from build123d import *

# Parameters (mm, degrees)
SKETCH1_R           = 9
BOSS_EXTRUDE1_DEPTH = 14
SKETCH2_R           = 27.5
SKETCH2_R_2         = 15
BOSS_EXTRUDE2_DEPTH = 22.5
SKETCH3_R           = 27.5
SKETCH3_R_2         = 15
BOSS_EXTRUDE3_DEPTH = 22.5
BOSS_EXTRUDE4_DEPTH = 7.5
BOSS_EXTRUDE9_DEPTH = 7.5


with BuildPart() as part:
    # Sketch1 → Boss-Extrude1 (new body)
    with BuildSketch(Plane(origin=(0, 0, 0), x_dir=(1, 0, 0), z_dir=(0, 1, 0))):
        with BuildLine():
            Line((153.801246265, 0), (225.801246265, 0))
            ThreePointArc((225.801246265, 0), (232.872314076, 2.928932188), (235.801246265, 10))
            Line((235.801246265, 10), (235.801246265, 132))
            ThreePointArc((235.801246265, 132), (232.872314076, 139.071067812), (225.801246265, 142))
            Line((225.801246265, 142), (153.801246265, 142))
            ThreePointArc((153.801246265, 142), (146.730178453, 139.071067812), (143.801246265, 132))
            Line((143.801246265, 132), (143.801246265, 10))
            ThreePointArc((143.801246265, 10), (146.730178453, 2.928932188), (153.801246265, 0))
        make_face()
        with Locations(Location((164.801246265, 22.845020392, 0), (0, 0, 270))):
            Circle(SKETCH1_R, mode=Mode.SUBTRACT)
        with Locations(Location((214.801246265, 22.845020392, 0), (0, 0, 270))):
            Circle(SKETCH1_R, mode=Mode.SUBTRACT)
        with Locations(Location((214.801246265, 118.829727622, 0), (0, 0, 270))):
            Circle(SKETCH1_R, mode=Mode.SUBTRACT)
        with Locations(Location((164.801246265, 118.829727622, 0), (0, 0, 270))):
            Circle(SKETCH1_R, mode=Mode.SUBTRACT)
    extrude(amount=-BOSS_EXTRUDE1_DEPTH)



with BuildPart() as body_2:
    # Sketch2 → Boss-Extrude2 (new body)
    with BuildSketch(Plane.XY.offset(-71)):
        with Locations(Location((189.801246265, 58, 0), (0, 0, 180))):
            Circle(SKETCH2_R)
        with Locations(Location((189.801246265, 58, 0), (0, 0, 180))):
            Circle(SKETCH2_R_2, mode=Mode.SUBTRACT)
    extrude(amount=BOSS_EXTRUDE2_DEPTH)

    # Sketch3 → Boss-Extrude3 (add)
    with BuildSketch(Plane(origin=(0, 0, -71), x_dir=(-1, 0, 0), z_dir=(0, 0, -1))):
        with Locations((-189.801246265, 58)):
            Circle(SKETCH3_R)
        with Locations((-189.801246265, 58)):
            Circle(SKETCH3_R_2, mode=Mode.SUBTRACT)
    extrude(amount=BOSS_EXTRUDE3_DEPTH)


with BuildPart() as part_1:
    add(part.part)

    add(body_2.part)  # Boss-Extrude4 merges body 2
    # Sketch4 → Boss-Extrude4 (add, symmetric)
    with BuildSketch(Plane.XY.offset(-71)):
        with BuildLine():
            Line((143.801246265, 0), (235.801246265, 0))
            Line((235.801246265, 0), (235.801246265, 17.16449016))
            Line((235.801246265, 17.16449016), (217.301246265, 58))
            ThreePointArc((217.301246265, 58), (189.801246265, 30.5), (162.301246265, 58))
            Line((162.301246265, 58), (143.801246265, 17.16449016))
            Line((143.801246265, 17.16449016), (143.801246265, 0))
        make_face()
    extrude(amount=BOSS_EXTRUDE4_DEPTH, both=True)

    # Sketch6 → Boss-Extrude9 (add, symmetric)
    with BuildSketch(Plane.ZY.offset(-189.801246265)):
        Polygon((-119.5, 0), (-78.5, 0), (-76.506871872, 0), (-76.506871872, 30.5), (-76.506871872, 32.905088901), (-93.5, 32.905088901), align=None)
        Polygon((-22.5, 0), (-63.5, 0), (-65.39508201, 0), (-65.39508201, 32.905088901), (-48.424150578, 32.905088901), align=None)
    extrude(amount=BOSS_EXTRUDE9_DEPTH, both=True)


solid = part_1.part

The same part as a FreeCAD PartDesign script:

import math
import FreeCAD as App
import Part
import Sketcher

V = App.Vector


def add_polygon(sketch, points):
    """Adds a closed chain of lines whose ends are joined by coincident constraints."""
    first, n = sketch.GeometryCount, len(points)
    for a, b in zip(points, points[1:] + points[:1]):
        sketch.addGeometry(Part.LineSegment(App.Vector(*a, 0), App.Vector(*b, 0)), False)
    for i in range(n):
        sketch.addConstraint(Sketcher.Constraint("Coincident", first + i, 2, first + (i + 1) % n, 1))

doc = App.newDocument("Part")
body = doc.addObject("PartDesign::Body", "Body")

# Sketch on XZ plane
sketch1 = doc.addObject("Sketcher::SketchObject", "Sketch")
body.addObject(sketch1)
sketch1.AttachmentSupport = (doc.XZ_Plane, [""])
sketch1.MapMode = "FlatFace"
sketch1.addGeometry([
    Part.LineSegment(V(154, 0, 0), V(226, 0, 0)),  # 0
    Part.ArcOfCircle(Part.Circle(V(226, -10, 0), V(0, 0, 1), 10), math.radians(0), math.radians(90)),  # 1
    Part.LineSegment(V(236, -10, 0), V(236, -132, 0)),  # 2
    Part.ArcOfCircle(Part.Circle(V(226, -132, 0), V(0, 0, 1), 10), math.radians(-90), math.radians(0)),  # 3
    Part.LineSegment(V(226, -142, 0), V(154, -142, 0)),  # 4
    Part.ArcOfCircle(Part.Circle(V(154, -132, 0), V(0, 0, 1), 10), math.radians(180), math.radians(270)),  # 5
    Part.LineSegment(V(144, -132, 0), V(144, -10, 0)),  # 6
    Part.ArcOfCircle(Part.Circle(V(154, -10, 0), V(0, 0, 1), 10), math.radians(90), math.radians(180)),  # 7
    Part.Circle(V(165, -23, 0), V(0, 0, 1), 9),  # 8
    Part.Circle(V(215, -23, 0), V(0, 0, 1), 9),  # 9
    Part.Circle(V(165, -119, 0), V(0, 0, 1), 9),  # 10
    Part.Circle(V(215, -119, 0), V(0, 0, 1), 9),  # 11
], False)
sketch1.addConstraint([
    Sketcher.Constraint("Tangent", 0, 2, 1, 2),
    Sketcher.Constraint("Tangent", 1, 1, 2, 1),
    Sketcher.Constraint("Tangent", 2, 2, 3, 2),
    Sketcher.Constraint("Tangent", 3, 1, 4, 1),
    Sketcher.Constraint("Tangent", 4, 2, 5, 2),
    Sketcher.Constraint("Tangent", 5, 1, 6, 1),
    Sketcher.Constraint("Tangent", 6, 2, 7, 2),
    Sketcher.Constraint("Tangent", 7, 1, 0, 1),
    Sketcher.Constraint("Horizontal", 0),
    Sketcher.Constraint("Vertical", 2),
    Sketcher.Constraint("Horizontal", 4),
    Sketcher.Constraint("Vertical", 6),
    Sketcher.Constraint("Equal", 1, 3),
    Sketcher.Constraint("Equal", 3, 5),
    Sketcher.Constraint("Equal", 5, 7),
    Sketcher.Constraint("Equal", 8, 9),
    Sketcher.Constraint("Equal", 9, 10),
    Sketcher.Constraint("Equal", 10, 11),
    Sketcher.Constraint("PointOnObject", 0, 2, -1),
    Sketcher.Constraint("Horizontal", 8, 3, 9, 3),
    Sketcher.Constraint("Horizontal", 10, 3, 11, 3),
    Sketcher.Constraint("Vertical", 8, 3, 10, 3),
    Sketcher.Constraint("Vertical", 9, 3, 11, 3),
    Sketcher.Constraint("Diameter", 8, 18.0),
    Sketcher.Constraint("Radius", 1, 10.0),
    Sketcher.Constraint("DistanceX", 0, 1, 0, 2, 72.0),
    Sketcher.Constraint("DistanceY", 2, 2, 2, 1, 122.0),
    Sketcher.Constraint("DistanceX", 7, 3, 8, 3, 11.0),
    Sketcher.Constraint("DistanceX", 9, 3, 1, 3, 11.0),
    Sketcher.Constraint("DistanceY", 8, 3, -1, 1, 22.84502),
    Sketcher.Constraint("DistanceX", -1, 1, 1, 3, 225.801246),
    Sketcher.Constraint("DistanceY", 10, 3, -1, 1, 118.829728),
])
pad1 = doc.addObject("PartDesign::Pad", "Pad")
body.addObject(pad1)
pad1.Profile = sketch1
pad1.Length = 14
body2 = doc.addObject("PartDesign::Body", "Body001")

# Sketch on XY plane
sketch2 = doc.addObject("Sketcher::SketchObject", "Sketch001")
body2.addObject(sketch2)
sketch2.AttachmentSupport = (doc.getObject("XY_Plane001"), [""])
sketch2.MapMode = "FlatFace"
sketch2.AttachmentOffset = App.Placement(V(0, 0, -71), App.Rotation())
sketch2.addGeometry([
    Part.Circle(V(190, 58, 0), V(0, 0, 1), 28),
    Part.Circle(V(190, 58, 0), V(0, 0, 1), 15),
], False)
sketch2.addConstraint([
    Sketcher.Constraint("Coincident", 1, 3, 0, 3),
    Sketcher.Constraint("Diameter", 0, 55.0),
    Sketcher.Constraint("Diameter", 1, 30.0),
    Sketcher.Constraint("DistanceY", -1, 1, 0, 3, 58.0),
    Sketcher.Constraint("DistanceX", -1, 1, 0, 3, 189.801246),
])
pad2 = doc.addObject("PartDesign::Pad", "Pad001")
body2.addObject(pad2)
pad2.Profile = sketch2
pad2.Length = 22.5

# Sketch on XY plane
sketch3 = doc.addObject("Sketcher::SketchObject", "Sketch002")
body2.addObject(sketch3)
sketch3.AttachmentSupport = (doc.getObject("XY_Plane001"), [""])
sketch3.MapMode = "FlatFace"
sketch3.AttachmentOffset = App.Placement(V(0, 0, -71), App.Rotation())
sketch3.addGeometry([
    Part.Circle(V(190, 58, 0), V(0, 0, 1), 28),
    Part.Circle(V(190, 58, 0), V(0, 0, 1), 15),
], False)
sketch3.addConstraint([
    Sketcher.Constraint("Coincident", 1, 3, 0, 3),
    Sketcher.Constraint("Diameter", 0, 55.0),
    Sketcher.Constraint("Diameter", 1, 30.0),
    Sketcher.Constraint("DistanceY", -1, 1, 0, 3, 58.0),
    Sketcher.Constraint("DistanceX", -1, 1, 0, 3, 189.801246),
])
pad3 = doc.addObject("PartDesign::Pad", "Pad002")
body2.addObject(pad3)
pad3.Profile = sketch3
pad3.Length = 22.5
pad3.Reversed = True
body.AllowCompound = True
doc.recompute()

boolean = doc.addObject("PartDesign::Boolean", "Boolean")
body.addObject(boolean)
boolean.Type = "Fuse"
boolean.addObjects([body2])

# Sketch on XY plane
sketch4 = doc.addObject("Sketcher::SketchObject", "Sketch003")
body.addObject(sketch4)
sketch4.AttachmentSupport = (doc.XY_Plane, [""])
sketch4.MapMode = "FlatFace"
sketch4.AttachmentOffset = App.Placement(V(0, 0, -71), App.Rotation())
sketch4.addGeometry([
    Part.LineSegment(V(144, 0, 0), V(236, 0, 0)),  # 0
    Part.LineSegment(V(236, 0, 0), V(236, 17, 0)),  # 1
    Part.LineSegment(V(236, 17, 0), V(217, 58, 0)),  # 2
    Part.ArcOfCircle(Part.Circle(V(190, 58, 0), V(0, 0, 1), 28), math.radians(180), math.radians(360)),  # 3
    Part.LineSegment(V(162, 58, 0), V(144, 17, 0)),  # 4
    Part.LineSegment(V(144, 17, 0), V(144, 0, 0)),  # 5
], False)
sketch4.addConstraint([
    Sketcher.Constraint("Coincident", 0, 2, 1, 1),
    Sketcher.Constraint("Coincident", 1, 2, 2, 1),
    Sketcher.Constraint("Coincident", 2, 2, 3, 2),
    Sketcher.Constraint("Coincident", 3, 1, 4, 1),
    Sketcher.Constraint("Coincident", 4, 2, 5, 1),
    Sketcher.Constraint("Coincident", 5, 2, 0, 1),
    Sketcher.Constraint("Horizontal", 0),
    Sketcher.Constraint("Vertical", 1),
    Sketcher.Constraint("Vertical", 5),
    Sketcher.Constraint("PointOnObject", 0, 2, -1),
    Sketcher.Constraint("Horizontal", 3, 3, 2, 2),
    Sketcher.Constraint("Horizontal", 2, 2, 3, 1),
    Sketcher.Constraint("Horizontal", 1, 2, 4, 2),
    Sketcher.Constraint("Equal", 2, 4),
    Sketcher.Constraint("Radius", 3, 27.5),
    Sketcher.Constraint("DistanceX", 0, 1, 0, 2, 92.0),
    Sketcher.Constraint("DistanceY", -1, 1, 3, 3, 58.0),
    Sketcher.Constraint("DistanceY", 1, 1, 1, 2, 17.16449),
    Sketcher.Constraint("DistanceX", -1, 1, 3, 3, 189.801246),
])
pad4 = doc.addObject("PartDesign::Pad", "Pad003")
body.addObject(pad4)
pad4.Profile = sketch4
pad4.Length = 15
pad4.Midplane = True

# Sketch on YZ plane
sketch5 = doc.addObject("Sketcher::SketchObject", "Sketch004")
body.addObject(sketch5)
sketch5.AttachmentSupport = (doc.YZ_Plane, [""])
sketch5.MapMode = "FlatFace"
sketch5.AttachmentOffset = App.Placement(V(0, 0, 189.801246), App.Rotation())
add_polygon(sketch5, [(0, -120), (0, -77), (33, -77), (33, -94)])  # lines 0-3
add_polygon(sketch5, [(0, -65), (0, -22), (33, -48), (33, -65)])  # lines 4-7
sketch5.addConstraint([
    Sketcher.Constraint("Vertical", 0),
    Sketcher.Constraint("Horizontal", 1),
    Sketcher.Constraint("Vertical", 2),
    Sketcher.Constraint("Vertical", 4),
    Sketcher.Constraint("Vertical", 6),
    Sketcher.Constraint("Horizontal", 7),
    Sketcher.Constraint("PointOnObject", 0, 2, -2),
    Sketcher.Constraint("PointOnObject", 4, 2, -2),
    Sketcher.Constraint("Vertical", 2, 2, 5, 2),
    Sketcher.Constraint("DistanceY", 3, 2, 2, 2, 26.0),
    Sketcher.Constraint("DistanceY", 2, 2, 4, 2, 71.0),
    Sketcher.Constraint("DistanceY", 2, 2, -1, 1, 93.5),
    Sketcher.Constraint("DistanceX", 1, 1, 1, 2, 32.905089),
    Sketcher.Constraint("DistanceY", 0, 1, 0, 2, 42.993128),
    Sketcher.Constraint("DistanceY", 6, 2, 6, 1, 16.970931),
    Sketcher.Constraint("Distance", 5, 41.89041),
])
pad5 = doc.addObject("PartDesign::Pad", "Pad004")
body.addObject(pad5)
pad5.Profile = sketch5
pad5.Length = 15
pad5.Midplane = True

doc.recompute()
